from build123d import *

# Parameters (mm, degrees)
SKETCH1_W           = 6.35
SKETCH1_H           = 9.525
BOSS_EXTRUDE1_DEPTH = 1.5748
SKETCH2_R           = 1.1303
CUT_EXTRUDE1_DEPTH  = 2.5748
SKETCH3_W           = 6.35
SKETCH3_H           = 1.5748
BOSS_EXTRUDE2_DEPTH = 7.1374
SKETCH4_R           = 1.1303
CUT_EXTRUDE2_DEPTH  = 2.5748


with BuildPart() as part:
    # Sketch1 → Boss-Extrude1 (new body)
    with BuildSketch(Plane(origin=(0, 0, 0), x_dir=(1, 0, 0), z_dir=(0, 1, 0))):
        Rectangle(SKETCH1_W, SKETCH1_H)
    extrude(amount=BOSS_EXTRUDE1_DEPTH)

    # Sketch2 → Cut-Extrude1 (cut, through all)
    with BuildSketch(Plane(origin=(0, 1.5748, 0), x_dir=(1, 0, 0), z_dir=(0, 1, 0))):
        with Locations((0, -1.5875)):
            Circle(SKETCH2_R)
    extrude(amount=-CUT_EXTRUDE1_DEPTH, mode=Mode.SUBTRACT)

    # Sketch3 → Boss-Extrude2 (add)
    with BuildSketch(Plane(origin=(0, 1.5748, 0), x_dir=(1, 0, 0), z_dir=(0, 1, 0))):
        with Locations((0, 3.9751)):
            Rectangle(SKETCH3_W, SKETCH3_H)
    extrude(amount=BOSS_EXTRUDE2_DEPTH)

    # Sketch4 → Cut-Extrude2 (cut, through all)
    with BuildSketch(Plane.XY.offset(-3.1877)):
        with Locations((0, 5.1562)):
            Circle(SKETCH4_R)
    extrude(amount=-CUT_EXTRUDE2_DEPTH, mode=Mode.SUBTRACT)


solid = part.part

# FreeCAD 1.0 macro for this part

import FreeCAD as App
import Part
import Sketcher
Q = App.Units.Quantity


def add_polygon(sketch, points):
    """Adds a closed chain of lines whose ends are joined by coincident constraints."""
    first, n = sketch.GeometryCount, len(points)
    for a, b in zip(points, points[1:] + points[:1]):
        sketch.addGeometry(Part.LineSegment(App.Vector(*a, 0), App.Vector(*b, 0)), False)
    for i in range(n):
        sketch.addConstraint(Sketcher.Constraint("Coincident", first + i, 2, first + (i + 1) % n, 1))

doc = App.newDocument("Part")
body = doc.addObject("PartDesign::Body", "Body")

sketch1 = doc.addObject("Sketcher::SketchObject", "Sketch")
body.addObject(sketch1)
sketch1.AttachmentSupport = (doc.XZ_Plane, [""])
sketch1.MapMode = "FlatFace"
add_polygon(sketch1, [(-3.175, -4.7625), (-3.175, 4.7625), (3.175, 4.7625), (3.175, -4.7625)])
sketch1.addConstraint([
    Sketcher.Constraint("Vertical", 0),
    Sketcher.Constraint("Horizontal", 1),
    Sketcher.Constraint("Vertical", 2),
    Sketcher.Constraint("Horizontal", 3),
    Sketcher.Constraint("Symmetric", 0, 2, 2, 2, -1, 1),
    Sketcher.Constraint("DistanceX", 1, 1, 1, 2, Q("0.25 in")),
    Sketcher.Constraint("DistanceY", 0, 1, 0, 2, Q("0.375 in")),
])
pad1 = doc.addObject("PartDesign::Pad", "Pad")
body.addObject(pad1)
pad1.Profile = sketch1
pad1.Length = Q("0.062 in")
pad1.Reversed = True

sketch2 = doc.addObject("Sketcher::SketchObject", "Sketch001")
body.addObject(sketch2)
sketch2.AttachmentSupport = (doc.XZ_Plane, [""])
sketch2.MapMode = "FlatFace"
sketch2.AttachmentOffset = App.Placement(App.Vector(0, 0, -0.062 * 25.4), App.Rotation())
sketch2.addGeometry(Part.Circle(App.Vector(0, 1.5875, 0), App.Vector(0, 0, 1), 1.1303), False)
sketch2.addConstraint([
    Sketcher.Constraint("PointOnObject", 0, 3, -2),
    Sketcher.Constraint("Diameter", 0, Q("0.089 in")),
    Sketcher.Constraint("DistanceY", -1, 1, 0, 3, Q("0.0625 in")),
])
pocket1 = doc.addObject("PartDesign::Pocket", "Pocket")
body.addObject(pocket1)
pocket1.Profile = sketch2
pocket1.Type = "ThroughAll"
pocket1.Reversed = True

sketch3 = doc.addObject("Sketcher::SketchObject", "Sketch002")
body.addObject(sketch3)
sketch3.AttachmentSupport = (doc.XZ_Plane, [""])
sketch3.MapMode = "FlatFace"
sketch3.AttachmentOffset = App.Placement(App.Vector(0, 0, -0.062 * 25.4), App.Rotation())
add_polygon(sketch3, [(-3.175, -4.7625), (-3.175, -3.1877), (3.175, -3.1877), (3.175, -4.7625)])
sketch3.addConstraint([
    Sketcher.Constraint("Vertical", 0),
    Sketcher.Constraint("Horizontal", 1),
    Sketcher.Constraint("Vertical", 2),
    Sketcher.Constraint("Horizontal", 3),
    Sketcher.Constraint("DistanceX", 1, 1, 1, 2, Q("0.25 in")),
    Sketcher.Constraint("DistanceY", 0, 1, 0, 2, Q("0.062 in")),
    Sketcher.Constraint("DistanceX", 0, 2, -1, 1, Q("0.125 in")),
    Sketcher.Constraint("DistanceY", 2, 2, -1, 1, Q("0.1875 in")),
])
pad2 = doc.addObject("PartDesign::Pad", "Pad001")
body.addObject(pad2)
pad2.Profile = sketch3
pad2.Length = Q("0.281 in")
pad2.Reversed = True

sketch4 = doc.addObject("Sketcher::SketchObject", "Sketch003")
body.addObject(sketch4)
sketch4.AttachmentSupport = (doc.XY_Plane, [""])
sketch4.MapMode = "FlatFace"
sketch4.AttachmentOffset = App.Placement(App.Vector(0, 0, -0.1255 * 25.4), App.Rotation())
sketch4.addGeometry(Part.Circle(App.Vector(0, 5.1562, 0), App.Vector(0, 0, 1), 1.1303), False)
sketch4.addConstraint([
    Sketcher.Constraint("PointOnObject", 0, 3, -2),
    Sketcher.Constraint("Diameter", 0, Q("0.089 in")),
    Sketcher.Constraint("DistanceY", -1, 1, 0, 3, Q("0.203 in")),
])
pocket2 = doc.addObject("PartDesign::Pocket", "Pocket001")
body.addObject(pocket2)
pocket2.Profile = sketch4
pocket2.Type = "ThroughAll"

doc.recompute()
